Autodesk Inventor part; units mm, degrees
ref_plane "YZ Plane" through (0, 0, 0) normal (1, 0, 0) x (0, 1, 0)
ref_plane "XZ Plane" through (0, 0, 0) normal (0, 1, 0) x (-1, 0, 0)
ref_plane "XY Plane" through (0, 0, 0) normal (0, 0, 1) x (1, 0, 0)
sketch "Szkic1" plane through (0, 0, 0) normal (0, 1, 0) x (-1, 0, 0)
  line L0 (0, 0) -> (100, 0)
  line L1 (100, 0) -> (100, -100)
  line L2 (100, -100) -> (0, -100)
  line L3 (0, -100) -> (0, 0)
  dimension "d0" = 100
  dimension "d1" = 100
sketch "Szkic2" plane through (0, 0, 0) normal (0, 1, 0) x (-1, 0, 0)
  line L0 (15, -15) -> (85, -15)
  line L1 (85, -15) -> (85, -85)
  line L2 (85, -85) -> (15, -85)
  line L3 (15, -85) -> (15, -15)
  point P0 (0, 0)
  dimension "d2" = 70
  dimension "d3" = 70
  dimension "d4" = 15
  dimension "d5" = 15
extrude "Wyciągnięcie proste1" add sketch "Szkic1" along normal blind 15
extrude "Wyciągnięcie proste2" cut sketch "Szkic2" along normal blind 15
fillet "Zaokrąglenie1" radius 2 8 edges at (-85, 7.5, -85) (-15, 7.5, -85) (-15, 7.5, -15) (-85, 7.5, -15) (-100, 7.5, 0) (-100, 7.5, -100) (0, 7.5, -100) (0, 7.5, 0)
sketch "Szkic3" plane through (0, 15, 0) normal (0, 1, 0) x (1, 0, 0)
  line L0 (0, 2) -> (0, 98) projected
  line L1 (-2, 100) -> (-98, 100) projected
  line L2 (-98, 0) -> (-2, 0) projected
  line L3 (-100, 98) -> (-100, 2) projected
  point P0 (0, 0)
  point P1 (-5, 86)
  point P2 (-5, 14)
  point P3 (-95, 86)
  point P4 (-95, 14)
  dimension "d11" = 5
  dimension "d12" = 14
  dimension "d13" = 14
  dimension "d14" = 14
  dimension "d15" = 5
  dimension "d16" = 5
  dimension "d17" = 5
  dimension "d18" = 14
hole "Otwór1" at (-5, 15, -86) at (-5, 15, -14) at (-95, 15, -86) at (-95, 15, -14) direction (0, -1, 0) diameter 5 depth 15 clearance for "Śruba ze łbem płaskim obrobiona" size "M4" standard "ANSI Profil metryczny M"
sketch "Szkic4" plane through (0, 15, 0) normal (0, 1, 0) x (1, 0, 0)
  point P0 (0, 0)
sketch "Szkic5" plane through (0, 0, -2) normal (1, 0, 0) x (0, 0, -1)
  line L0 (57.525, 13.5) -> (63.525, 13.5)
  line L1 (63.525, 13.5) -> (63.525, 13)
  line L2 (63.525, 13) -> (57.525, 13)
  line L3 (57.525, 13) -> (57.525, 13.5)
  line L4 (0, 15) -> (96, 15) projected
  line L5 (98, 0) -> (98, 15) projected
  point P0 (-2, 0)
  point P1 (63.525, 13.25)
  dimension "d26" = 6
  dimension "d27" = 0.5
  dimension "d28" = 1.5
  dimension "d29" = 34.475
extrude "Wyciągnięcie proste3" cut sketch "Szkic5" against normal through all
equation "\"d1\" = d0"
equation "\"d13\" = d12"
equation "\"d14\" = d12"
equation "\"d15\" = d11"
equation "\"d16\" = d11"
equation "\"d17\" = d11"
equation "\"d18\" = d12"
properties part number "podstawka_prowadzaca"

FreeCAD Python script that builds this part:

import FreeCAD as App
import Part
import Sketcher
from FreeCAD import Vector


def edges_at(feature, points):
    """Names of the edges that pass closest to the given points."""
    edges = feature.Shape.Edges
    near = lambda p: min(range(len(edges)), key=lambda i: edges[i].distToShape(Part.Vertex(*p))[0])
    return sorted({f"Edge{near(p) + 1}" for p in points})

doc = App.newDocument("Part")
body = doc.addObject("PartDesign::Body", "Body")

sketch1 = body.newObject("Sketcher::SketchObject", "Sketch")
sketch1.AttachmentSupport = (doc.getObject("XZ_Plane"), [""])
sketch1.MapMode = "FlatFace"
sketch1.addGeometry([
    Part.LineSegment(Vector(-100, 0, 0), Vector(0, 0, 0)),
    Part.LineSegment(Vector(0, 0, 0), Vector(0, -100, 0)),
    Part.LineSegment(Vector(0, -100, 0), Vector(-100, -100, 0)),
    Part.LineSegment(Vector(-100, -100, 0), Vector(-100, 0, 0)),
], False)
sketch1.addConstraint([
    Sketcher.Constraint("Coincident", 0, 2, 1, 1),
    Sketcher.Constraint("Coincident", 1, 2, 2, 1),
    Sketcher.Constraint("Coincident", 2, 2, 3, 1),
    Sketcher.Constraint("Coincident", 3, 2, 0, 1),
    Sketcher.Constraint("Horizontal", 0),
    Sketcher.Constraint("Vertical", 1),
    Sketcher.Constraint("Horizontal", 2),
    Sketcher.Constraint("Vertical", 3),
    Sketcher.Constraint("Coincident", 0, 2, -1, 1),
    Sketcher.Constraint("Equal", 2, 1),
    Sketcher.Constraint("DistanceX", 0, 1, 0, 2, 100.0),
])
pad1 = body.newObject("PartDesign::Pad", "Pad")
pad1.Profile = sketch1
pad1.Length = 15
pad1.Reversed = True

sketch2 = body.newObject("Sketcher::SketchObject", "Sketch001")
sketch2.AttachmentSupport = (doc.getObject("XZ_Plane"), [""])
sketch2.MapMode = "FlatFace"
sketch2.addGeometry([
    Part.LineSegment(Vector(-85, -15, 0), Vector(-15, -15, 0)),
    Part.LineSegment(Vector(-15, -15, 0), Vector(-15, -85, 0)),
    Part.LineSegment(Vector(-15, -85, 0), Vector(-85, -85, 0)),
    Part.LineSegment(Vector(-85, -85, 0), Vector(-85, -15, 0)),
], False)
sketch2.addConstraint([
    Sketcher.Constraint("Coincident", 0, 2, 1, 1),
    Sketcher.Constraint("Coincident", 1, 2, 2, 1),
    Sketcher.Constraint("Coincident", 2, 2, 3, 1),
    Sketcher.Constraint("Coincident", 3, 2, 0, 1),
    Sketcher.Constraint("Horizontal", 0),
    Sketcher.Constraint("Vertical", 1),
    Sketcher.Constraint("Horizontal", 2),
    Sketcher.Constraint("Vertical", 3),
    Sketcher.Constraint("Equal", 2, 1),
    Sketcher.Constraint("DistanceX", 0, 1, 0, 2, 70.0),
    Sketcher.Constraint("DistanceX", 0, 2, -1, 1, 15.0),
    Sketcher.Constraint("DistanceY", 0, 2, -1, 1, 15.0),
])
pocket1 = body.newObject("PartDesign::Pocket", "Pocket")
pocket1.Profile = sketch2
pocket1.Length = 15
doc.recompute()

fillet = body.newObject("PartDesign::Fillet", "Fillet")
fillet.Base = (pocket1, edges_at(pocket1, [
    (-85, 7.5, -85),
    (-15, 7.5, -85),
    (-15, 7.5, -15),
    (-85, 7.5, -15),
    (-100, 7.5, 0),
    (-100, 7.5, -100),
    (0, 7.5, -100),
    (0, 7.5, 0),
]))
fillet.Radius = 2

sketch3 = body.newObject("Sketcher::SketchObject", "Sketch002")
sketch3.AttachmentSupport = (doc.getObject("XZ_Plane"), [""])
sketch3.MapMode = "FlatFace"
sketch3.AttachmentOffset = App.Placement(Vector(0, 0, -15), App.Rotation())
sketch3.addGeometry([
    Part.Circle(Vector(-5, -86, 0), Vector(0, 0, 1), 2.5),
    Part.Circle(Vector(-5, -14, 0), Vector(0, 0, 1), 2.5),
    Part.Circle(Vector(-95, -86, 0), Vector(0, 0, 1), 2.5),
    Part.Circle(Vector(-95, -14, 0), Vector(0, 0, 1), 2.5),
], False)
sketch3.addConstraint([
    Sketcher.Constraint("Equal", 0, 1),
    Sketcher.Constraint("Equal", 1, 2),
    Sketcher.Constraint("Equal", 2, 3),
    Sketcher.Constraint("Horizontal", 0, 3, 2, 3),
    Sketcher.Constraint("Horizontal", 1, 3, 3, 3),
    Sketcher.Constraint("Vertical", 0, 3, 1, 3),
    Sketcher.Constraint("Vertical", 2, 3, 3, 3),
    Sketcher.Constraint("Diameter", 0, 5.0),
    Sketcher.Constraint("DistanceX", 0, 3, -1, 1, 5.0),
    Sketcher.Constraint("DistanceY", 0, 3, -1, 1, 86.0),
    Sketcher.Constraint("DistanceY", 1, 3, -1, 1, 14.0),
    Sketcher.Constraint("DistanceX", 2, 3, -1, 1, 95.0),
])
doc.recompute()
hole = body.newObject("PartDesign::Hole", "Hole")
hole.Profile = sketch3
hole.ThreadType = "None"
hole.Diameter = 5
hole.DepthType = "Dimension"
hole.Depth = 15
hole.DrillPoint = "Flat"
hole.Reversed = True

sketch4 = body.newObject("Sketcher::SketchObject", "Sketch003")
sketch4.AttachmentSupport = (doc.getObject("YZ_Plane"), [""])
sketch4.MapMode = "FlatFace"
sketch4.addGeometry([
    Part.LineSegment(Vector(13.5, -65.525, 0), Vector(13.5, -59.525, 0)),
    Part.LineSegment(Vector(13.5, -59.525, 0), Vector(13, -59.525, 0)),
    Part.LineSegment(Vector(13, -59.525, 0), Vector(13, -65.525, 0)),
    Part.LineSegment(Vector(13, -65.525, 0), Vector(13.5, -65.525, 0)),
], False)
sketch4.addConstraint([
    Sketcher.Constraint("Coincident", 0, 2, 1, 1),
    Sketcher.Constraint("Coincident", 1, 2, 2, 1),
    Sketcher.Constraint("Coincident", 2, 2, 3, 1),
    Sketcher.Constraint("Coincident", 3, 2, 0, 1),
    Sketcher.Constraint("Vertical", 0),
    Sketcher.Constraint("Horizontal", 1),
    Sketcher.Constraint("Vertical", 2),
    Sketcher.Constraint("Horizontal", 3),
    Sketcher.Constraint("DistanceY", 0, 1, 0, 2, 6.0),
    Sketcher.Constraint("DistanceX", 1, 2, 1, 1, 0.5),
    Sketcher.Constraint("DistanceX", -1, 1, 1, 2, 13.0),
    Sketcher.Constraint("DistanceY", 0, 2, -1, 1, 59.525),
])
pocket2 = body.newObject("PartDesign::Pocket", "Pocket001")
pocket2.Profile = sketch4
pocket2.Type = "ThroughAll"

doc.recompute()
